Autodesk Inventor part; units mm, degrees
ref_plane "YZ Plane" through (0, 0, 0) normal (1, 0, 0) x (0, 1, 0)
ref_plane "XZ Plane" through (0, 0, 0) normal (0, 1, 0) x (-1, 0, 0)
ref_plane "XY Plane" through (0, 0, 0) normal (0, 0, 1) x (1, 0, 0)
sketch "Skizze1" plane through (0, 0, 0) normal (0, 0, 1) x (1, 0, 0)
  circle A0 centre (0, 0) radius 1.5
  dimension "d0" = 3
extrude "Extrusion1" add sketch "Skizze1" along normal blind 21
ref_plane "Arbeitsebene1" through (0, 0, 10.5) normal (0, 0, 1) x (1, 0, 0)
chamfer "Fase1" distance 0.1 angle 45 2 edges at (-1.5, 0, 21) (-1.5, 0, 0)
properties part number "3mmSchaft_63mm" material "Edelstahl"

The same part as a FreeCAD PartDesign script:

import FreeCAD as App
import Part
import Sketcher

V = App.Vector


def edges_at(feature, points):
    """Names of the edges that pass closest to the given points."""
    edges = feature.Shape.Edges
    near = lambda p: min(range(len(edges)), key=lambda i: edges[i].distToShape(Part.Vertex(*p))[0])
    return sorted({f"Edge{near(p) + 1}" for p in points})

doc = App.newDocument("Part")
body = doc.addObject("PartDesign::Body", "Body")

# Sketch on XY plane
sketch1 = body.newObject("Sketcher::SketchObject", "Sketch")
sketch1.AttachmentSupport = (doc.getObject("XY_Plane"), [""])
sketch1.MapMode = "FlatFace"
sketch1.addGeometry(Part.Circle(V(0, 0, 0), V(0, 0, 1), 1.5), False)
sketch1.addConstraint(Sketcher.Constraint("Coincident", 0, 3, -1, 1))
sketch1.addConstraint(Sketcher.Constraint("Diameter", 0, 3.0))
pad1 = body.newObject("PartDesign::Pad", "Pad")
pad1.Profile = sketch1
pad1.Length = 21
doc.recompute()

chamfer = body.newObject("PartDesign::Chamfer", "Chamfer")
chamfer.Base = (pad1, edges_at(pad1, [(-1.5, 0, 21), (-1.5, 0, 0)]))
chamfer.Size = 0.1

doc.recompute()
